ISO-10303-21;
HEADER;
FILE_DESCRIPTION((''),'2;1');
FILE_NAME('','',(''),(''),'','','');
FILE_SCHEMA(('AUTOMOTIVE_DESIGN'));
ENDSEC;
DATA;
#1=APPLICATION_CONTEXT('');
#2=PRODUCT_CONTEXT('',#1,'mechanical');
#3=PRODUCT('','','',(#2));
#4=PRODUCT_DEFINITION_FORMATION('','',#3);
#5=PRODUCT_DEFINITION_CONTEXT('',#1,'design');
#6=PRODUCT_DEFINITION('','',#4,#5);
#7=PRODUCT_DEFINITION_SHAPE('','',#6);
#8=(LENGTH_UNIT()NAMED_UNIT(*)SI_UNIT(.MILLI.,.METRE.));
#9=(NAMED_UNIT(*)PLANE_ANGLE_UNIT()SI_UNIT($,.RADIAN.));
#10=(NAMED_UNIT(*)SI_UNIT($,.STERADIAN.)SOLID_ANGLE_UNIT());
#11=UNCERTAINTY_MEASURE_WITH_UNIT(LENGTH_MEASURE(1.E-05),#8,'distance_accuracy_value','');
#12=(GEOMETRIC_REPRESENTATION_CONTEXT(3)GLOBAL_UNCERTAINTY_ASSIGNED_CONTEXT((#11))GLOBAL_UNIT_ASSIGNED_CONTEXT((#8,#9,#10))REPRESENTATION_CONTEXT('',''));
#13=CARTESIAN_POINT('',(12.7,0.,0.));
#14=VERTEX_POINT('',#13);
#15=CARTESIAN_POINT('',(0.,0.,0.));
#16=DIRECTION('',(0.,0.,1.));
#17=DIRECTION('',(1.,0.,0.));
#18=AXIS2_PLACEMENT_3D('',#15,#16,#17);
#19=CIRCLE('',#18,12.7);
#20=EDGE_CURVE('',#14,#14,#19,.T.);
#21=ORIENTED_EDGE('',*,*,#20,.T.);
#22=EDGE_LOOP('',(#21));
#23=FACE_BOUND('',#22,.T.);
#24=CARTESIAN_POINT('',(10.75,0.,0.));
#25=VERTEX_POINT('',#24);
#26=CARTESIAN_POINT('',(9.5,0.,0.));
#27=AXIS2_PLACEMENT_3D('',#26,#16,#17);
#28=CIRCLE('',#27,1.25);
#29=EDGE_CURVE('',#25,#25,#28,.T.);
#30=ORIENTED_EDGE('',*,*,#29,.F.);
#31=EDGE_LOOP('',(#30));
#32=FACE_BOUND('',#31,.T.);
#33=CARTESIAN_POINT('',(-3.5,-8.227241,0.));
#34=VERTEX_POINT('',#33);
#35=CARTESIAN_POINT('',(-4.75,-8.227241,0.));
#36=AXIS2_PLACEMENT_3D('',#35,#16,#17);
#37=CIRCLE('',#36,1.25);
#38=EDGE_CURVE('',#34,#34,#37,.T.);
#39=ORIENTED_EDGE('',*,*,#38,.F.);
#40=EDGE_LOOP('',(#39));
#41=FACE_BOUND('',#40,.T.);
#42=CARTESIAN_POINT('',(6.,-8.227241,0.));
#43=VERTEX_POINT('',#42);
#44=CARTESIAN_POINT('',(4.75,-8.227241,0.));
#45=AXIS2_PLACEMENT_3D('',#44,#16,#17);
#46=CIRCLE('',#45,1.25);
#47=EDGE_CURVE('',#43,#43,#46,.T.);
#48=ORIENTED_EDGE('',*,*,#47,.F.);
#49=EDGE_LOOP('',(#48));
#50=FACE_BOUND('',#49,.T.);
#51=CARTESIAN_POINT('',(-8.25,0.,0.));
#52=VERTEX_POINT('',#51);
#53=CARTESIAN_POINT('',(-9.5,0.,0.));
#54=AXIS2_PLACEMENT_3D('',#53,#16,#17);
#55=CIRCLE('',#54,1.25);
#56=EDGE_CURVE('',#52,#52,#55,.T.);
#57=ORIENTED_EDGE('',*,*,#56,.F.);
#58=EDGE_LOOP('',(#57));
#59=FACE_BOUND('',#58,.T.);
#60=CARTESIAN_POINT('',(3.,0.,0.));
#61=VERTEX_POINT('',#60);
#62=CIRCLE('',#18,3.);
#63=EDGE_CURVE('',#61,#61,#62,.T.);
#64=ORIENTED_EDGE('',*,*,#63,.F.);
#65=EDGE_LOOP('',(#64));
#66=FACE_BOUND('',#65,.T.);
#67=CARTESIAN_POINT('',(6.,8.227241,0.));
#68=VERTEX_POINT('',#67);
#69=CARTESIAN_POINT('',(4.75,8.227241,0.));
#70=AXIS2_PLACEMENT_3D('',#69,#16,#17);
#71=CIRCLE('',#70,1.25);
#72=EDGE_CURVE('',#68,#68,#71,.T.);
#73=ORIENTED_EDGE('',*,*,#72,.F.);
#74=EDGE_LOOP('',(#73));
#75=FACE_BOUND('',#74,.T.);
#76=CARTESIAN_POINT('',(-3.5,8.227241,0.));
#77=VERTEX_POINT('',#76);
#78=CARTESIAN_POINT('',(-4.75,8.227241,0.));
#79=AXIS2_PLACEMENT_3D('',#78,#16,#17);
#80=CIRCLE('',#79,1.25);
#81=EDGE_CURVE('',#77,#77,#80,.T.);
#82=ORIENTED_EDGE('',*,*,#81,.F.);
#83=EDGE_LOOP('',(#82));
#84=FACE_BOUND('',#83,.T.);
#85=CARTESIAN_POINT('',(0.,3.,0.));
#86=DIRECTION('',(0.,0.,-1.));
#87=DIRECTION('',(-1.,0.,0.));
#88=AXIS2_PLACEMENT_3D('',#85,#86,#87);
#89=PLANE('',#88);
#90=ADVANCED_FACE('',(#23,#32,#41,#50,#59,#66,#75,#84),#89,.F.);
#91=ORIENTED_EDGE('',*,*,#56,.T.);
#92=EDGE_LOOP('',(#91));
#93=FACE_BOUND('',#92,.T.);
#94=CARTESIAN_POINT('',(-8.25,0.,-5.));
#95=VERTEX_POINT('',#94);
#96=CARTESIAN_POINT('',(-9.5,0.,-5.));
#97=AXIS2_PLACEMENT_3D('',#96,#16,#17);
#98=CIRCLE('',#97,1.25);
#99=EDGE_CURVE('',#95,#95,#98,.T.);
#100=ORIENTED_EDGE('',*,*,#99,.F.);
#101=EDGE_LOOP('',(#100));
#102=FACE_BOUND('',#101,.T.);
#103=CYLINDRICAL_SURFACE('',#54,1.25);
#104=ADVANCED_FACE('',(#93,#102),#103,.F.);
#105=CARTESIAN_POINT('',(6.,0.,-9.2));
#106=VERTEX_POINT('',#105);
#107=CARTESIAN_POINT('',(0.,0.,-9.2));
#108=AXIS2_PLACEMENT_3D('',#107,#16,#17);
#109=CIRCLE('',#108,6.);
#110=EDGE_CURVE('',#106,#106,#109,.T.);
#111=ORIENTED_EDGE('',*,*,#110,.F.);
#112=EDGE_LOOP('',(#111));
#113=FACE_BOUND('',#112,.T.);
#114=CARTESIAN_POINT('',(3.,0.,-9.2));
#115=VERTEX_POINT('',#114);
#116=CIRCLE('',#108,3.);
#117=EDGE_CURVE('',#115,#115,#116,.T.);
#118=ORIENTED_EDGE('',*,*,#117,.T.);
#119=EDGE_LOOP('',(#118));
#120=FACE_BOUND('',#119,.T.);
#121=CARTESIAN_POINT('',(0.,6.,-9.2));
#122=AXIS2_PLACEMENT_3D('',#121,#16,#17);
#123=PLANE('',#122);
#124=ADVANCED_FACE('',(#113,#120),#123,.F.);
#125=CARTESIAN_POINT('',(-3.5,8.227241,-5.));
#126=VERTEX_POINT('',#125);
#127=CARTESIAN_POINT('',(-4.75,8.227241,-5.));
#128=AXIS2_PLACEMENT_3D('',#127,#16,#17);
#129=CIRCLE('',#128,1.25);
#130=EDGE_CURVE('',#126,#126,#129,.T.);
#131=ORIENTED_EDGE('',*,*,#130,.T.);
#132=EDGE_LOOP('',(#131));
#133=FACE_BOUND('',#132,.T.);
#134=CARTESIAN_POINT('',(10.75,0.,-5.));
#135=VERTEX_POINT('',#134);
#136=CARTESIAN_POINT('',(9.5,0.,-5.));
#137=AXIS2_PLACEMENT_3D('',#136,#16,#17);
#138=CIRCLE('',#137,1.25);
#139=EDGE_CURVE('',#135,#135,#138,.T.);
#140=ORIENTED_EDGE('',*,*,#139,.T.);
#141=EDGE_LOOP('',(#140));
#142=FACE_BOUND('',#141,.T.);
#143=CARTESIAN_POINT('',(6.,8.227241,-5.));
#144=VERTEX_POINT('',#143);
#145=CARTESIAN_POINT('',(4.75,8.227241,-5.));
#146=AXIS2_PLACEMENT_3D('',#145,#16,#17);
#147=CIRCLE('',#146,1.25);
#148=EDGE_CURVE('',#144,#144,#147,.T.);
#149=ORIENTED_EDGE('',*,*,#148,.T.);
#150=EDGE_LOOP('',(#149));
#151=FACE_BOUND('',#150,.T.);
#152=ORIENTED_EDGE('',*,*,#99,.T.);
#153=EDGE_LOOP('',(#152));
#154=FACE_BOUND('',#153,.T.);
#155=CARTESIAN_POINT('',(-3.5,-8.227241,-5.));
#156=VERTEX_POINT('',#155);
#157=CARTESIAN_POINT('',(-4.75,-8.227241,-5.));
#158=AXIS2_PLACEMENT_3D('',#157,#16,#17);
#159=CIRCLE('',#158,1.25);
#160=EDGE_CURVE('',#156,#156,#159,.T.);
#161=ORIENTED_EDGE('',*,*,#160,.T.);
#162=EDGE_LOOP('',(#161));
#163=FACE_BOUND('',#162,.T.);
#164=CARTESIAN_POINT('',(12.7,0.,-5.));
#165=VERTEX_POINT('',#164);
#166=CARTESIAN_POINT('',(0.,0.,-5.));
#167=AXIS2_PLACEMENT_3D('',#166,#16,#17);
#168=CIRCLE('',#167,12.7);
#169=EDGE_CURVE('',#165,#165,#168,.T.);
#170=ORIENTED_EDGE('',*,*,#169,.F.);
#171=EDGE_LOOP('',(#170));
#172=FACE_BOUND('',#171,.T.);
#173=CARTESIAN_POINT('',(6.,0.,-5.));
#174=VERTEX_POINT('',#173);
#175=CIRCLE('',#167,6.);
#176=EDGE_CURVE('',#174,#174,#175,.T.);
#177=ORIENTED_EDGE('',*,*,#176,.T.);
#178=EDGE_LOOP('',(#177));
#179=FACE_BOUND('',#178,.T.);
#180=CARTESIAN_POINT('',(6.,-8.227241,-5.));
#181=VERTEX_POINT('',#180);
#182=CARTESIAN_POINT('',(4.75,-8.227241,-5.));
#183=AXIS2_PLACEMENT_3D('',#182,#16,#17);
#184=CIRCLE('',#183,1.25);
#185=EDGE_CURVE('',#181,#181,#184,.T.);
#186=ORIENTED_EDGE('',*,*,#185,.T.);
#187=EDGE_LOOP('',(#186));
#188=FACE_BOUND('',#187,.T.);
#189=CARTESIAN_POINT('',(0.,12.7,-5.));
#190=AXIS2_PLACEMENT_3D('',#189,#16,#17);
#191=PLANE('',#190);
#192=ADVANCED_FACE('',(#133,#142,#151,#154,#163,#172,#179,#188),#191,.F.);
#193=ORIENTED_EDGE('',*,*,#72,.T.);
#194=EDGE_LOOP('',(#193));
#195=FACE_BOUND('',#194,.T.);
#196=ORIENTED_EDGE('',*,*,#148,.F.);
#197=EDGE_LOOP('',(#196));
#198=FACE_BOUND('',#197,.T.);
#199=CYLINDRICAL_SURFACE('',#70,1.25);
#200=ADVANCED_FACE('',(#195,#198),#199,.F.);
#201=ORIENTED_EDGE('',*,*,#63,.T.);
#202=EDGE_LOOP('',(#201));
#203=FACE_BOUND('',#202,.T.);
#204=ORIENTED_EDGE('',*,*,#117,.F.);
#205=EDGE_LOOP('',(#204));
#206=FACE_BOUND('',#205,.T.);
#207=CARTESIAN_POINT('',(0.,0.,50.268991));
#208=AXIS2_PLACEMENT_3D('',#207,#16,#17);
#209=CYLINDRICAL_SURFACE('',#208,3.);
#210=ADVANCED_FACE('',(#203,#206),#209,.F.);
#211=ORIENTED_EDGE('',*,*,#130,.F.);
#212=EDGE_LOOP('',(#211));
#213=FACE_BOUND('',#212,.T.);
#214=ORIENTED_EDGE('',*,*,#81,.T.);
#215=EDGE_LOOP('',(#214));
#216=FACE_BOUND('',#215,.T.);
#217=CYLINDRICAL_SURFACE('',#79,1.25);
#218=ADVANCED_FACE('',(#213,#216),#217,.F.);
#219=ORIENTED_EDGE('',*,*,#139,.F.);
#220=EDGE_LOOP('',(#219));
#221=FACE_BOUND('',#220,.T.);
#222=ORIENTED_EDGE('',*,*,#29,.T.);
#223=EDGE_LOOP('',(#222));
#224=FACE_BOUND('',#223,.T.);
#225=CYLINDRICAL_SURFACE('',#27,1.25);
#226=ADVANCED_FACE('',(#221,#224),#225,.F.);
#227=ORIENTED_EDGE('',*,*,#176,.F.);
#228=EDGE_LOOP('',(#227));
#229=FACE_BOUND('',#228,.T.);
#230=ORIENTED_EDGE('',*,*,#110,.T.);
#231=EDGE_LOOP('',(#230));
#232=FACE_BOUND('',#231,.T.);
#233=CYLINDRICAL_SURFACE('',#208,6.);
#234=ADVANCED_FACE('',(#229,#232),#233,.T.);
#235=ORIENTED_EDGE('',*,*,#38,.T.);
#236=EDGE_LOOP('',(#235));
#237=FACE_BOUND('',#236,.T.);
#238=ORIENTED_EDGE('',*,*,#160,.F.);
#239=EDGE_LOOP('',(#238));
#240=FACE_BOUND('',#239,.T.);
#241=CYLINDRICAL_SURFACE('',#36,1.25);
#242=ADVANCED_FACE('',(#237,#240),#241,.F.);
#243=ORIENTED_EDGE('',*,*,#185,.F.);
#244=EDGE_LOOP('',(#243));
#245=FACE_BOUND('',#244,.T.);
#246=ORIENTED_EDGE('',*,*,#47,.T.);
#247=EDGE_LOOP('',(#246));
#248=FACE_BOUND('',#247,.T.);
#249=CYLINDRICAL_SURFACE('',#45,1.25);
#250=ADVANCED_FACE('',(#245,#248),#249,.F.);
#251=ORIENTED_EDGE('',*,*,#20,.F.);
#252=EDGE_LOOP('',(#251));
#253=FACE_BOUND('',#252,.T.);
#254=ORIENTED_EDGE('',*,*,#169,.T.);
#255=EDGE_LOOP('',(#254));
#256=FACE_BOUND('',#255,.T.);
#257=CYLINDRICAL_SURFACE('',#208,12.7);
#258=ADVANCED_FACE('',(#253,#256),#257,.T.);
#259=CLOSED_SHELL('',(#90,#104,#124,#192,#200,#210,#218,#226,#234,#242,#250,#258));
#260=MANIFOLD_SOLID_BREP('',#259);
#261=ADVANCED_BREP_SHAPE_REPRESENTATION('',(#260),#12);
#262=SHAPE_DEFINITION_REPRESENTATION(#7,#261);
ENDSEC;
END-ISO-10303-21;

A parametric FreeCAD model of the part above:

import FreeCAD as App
import Part
import Sketcher


def add_polygon(sketch, points):
    """Adds a closed chain of lines whose ends are joined by coincident constraints."""
    first, n = sketch.GeometryCount, len(points)
    for a, b in zip(points, points[1:] + points[:1]):
        sketch.addGeometry(Part.LineSegment(App.Vector(*a, 0), App.Vector(*b, 0)), False)
    for i in range(n):
        sketch.addConstraint(Sketcher.Constraint("Coincident", first + i, 2, first + (i + 1) % n, 1))

doc = App.newDocument("Part")
body = doc.addObject("PartDesign::Body", "Body")

# Sketch on YZ plane
sketch1 = body.newObject("Sketcher::SketchObject", "Sketch")
sketch1.AttachmentSupport = (doc.getObject("YZ_Plane"), [""])
sketch1.MapMode = "FlatFace"
add_polygon(sketch1, [(12.7, 0), (3, 0), (3, -9.2), (6, -9.2), (6, -5), (12.7, -5)])  # lines 0-5
sketch1.addConstraint(Sketcher.Constraint("Horizontal", 0))
sketch1.addConstraint(Sketcher.Constraint("Vertical", 1))
sketch1.addConstraint(Sketcher.Constraint("Horizontal", 2))
sketch1.addConstraint(Sketcher.Constraint("Vertical", 3))
sketch1.addConstraint(Sketcher.Constraint("Horizontal", 4))
sketch1.addConstraint(Sketcher.Constraint("Vertical", 5))
sketch1.addConstraint(Sketcher.Constraint("PointOnObject", 0, 2, -1))
sketch1.addConstraint(Sketcher.Constraint("DistanceX", 2, 1, 2, 2, 3.0))
sketch1.addConstraint(Sketcher.Constraint("DistanceY", 5, 1, 5, 2, 5.0))
sketch1.addConstraint(Sketcher.Constraint("DistanceX", 0, 2, 0, 1, 9.7))
sketch1.addConstraint(Sketcher.Constraint("DistanceY", 1, 2, 1, 1, 9.2))
sketch1.addConstraint(Sketcher.Constraint("DistanceX", -1, 1, 0, 2, 3.0))
revolution = body.newObject("PartDesign::Revolution", "Revolution")
revolution.Profile = sketch1
revolution.ReferenceAxis = (sketch1, ["V_Axis"])
revolution.Angle = 360

# Sketch on XY plane
sketch2 = body.newObject("Sketcher::SketchObject", "Sketch001")
sketch2.AttachmentSupport = (doc.getObject("XY_Plane"), [""])
sketch2.MapMode = "FlatFace"
sketch2.addGeometry(Part.Circle(App.Vector(-4.8, 8.2, 0), App.Vector(0, 0, 1), 1.2), False)
sketch2.addGeometry(Part.Circle(App.Vector(4.8, 8.2, 0), App.Vector(0, 0, 1), 1.2), False)
sketch2.addGeometry(Part.Circle(App.Vector(9.5, 0, 0), App.Vector(0, 0, 1), 1.2), False)
sketch2.addGeometry(Part.Circle(App.Vector(4.8, -8.2, 0), App.Vector(0, 0, 1), 1.2), False)
sketch2.addGeometry(Part.Circle(App.Vector(-4.8, -8.2, 0), App.Vector(0, 0, 1), 1.2), False)
sketch2.addGeometry(Part.Circle(App.Vector(-9.5, 0, 0), App.Vector(0, 0, 1), 1.2), False)
sketch2.addConstraint(Sketcher.Constraint("Equal", 0, 1))
sketch2.addConstraint(Sketcher.Constraint("Equal", 1, 2))
sketch2.addConstraint(Sketcher.Constraint("Equal", 2, 3))
sketch2.addConstraint(Sketcher.Constraint("Equal", 3, 4))
sketch2.addConstraint(Sketcher.Constraint("Equal", 4, 5))
sketch2.addConstraint(Sketcher.Constraint("Symmetric", 0, 3, 3, 3, -1, 1))
sketch2.addConstraint(Sketcher.Constraint("Symmetric", 1, 3, 4, 3, -1, 1))
sketch2.addConstraint(Sketcher.Constraint("Symmetric", 2, 3, 5, 3, -1, 1))
sketch2.addConstraint(Sketcher.Constraint("Symmetric", 0, 3, 1, 3, -2))
sketch2.addConstraint(Sketcher.Constraint("PointOnObject", 2, 3, -1))
sketch2.addConstraint(Sketcher.Constraint("Diameter", 0, 2.5))
sketch2.addConstraint(Sketcher.Constraint("DistanceX", 5, 3, 2, 3, 19.0))
sketch2.addConstraint(Sketcher.Constraint("DistanceX", 0, 3, 1, 3, 9.5))
sketch2.addConstraint(Sketcher.Constraint("DistanceY", -1, 1, 0, 3, 8.227241))
doc.recompute()
hole = body.newObject("PartDesign::Hole", "Hole")
hole.Profile = sketch2
hole.ThreadType = "None"
hole.Diameter = 2.5
hole.DepthType = "Dimension"
hole.Depth = 10
hole.DrillPoint = "Angled"
hole.DrillPointAngle = 118

doc.recompute()
